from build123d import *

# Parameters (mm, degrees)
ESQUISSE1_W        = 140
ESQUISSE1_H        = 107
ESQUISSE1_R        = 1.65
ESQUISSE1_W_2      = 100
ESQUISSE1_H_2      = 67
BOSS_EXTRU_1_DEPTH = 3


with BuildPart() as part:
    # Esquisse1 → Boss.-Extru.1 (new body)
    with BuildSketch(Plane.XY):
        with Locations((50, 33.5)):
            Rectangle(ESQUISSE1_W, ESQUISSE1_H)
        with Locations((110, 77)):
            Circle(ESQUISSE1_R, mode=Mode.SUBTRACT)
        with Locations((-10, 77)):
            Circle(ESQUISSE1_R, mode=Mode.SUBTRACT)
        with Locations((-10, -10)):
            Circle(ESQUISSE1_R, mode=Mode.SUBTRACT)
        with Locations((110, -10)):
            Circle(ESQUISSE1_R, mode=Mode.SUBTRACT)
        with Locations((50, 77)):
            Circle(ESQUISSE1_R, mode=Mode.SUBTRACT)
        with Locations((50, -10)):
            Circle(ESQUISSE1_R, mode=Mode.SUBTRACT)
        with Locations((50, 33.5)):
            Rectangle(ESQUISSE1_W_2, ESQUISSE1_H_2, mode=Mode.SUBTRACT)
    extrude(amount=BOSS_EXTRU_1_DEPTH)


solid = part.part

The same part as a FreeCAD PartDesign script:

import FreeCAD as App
import Part
import Sketcher
from FreeCAD import Vector
Q = App.Units.Quantity

doc = App.newDocument("Part")
body = doc.addObject("PartDesign::Body", "Body")

sketch1 = body.newObject("Sketcher::SketchObject", "Sketch")
sketch1.AttachmentSupport = (doc.getObject("XY_Plane"), [""])
sketch1.MapMode = "FlatFace"
sketch1.addGeometry([
    Part.LineSegment(Vector(-20, 87, 0), Vector(-20, -20, 0)),
    Part.LineSegment(Vector(-20, -20, 0), Vector(120, -20, 0)),
    Part.LineSegment(Vector(120, -20, 0), Vector(120, 87, 0)),
    Part.LineSegment(Vector(120, 87, 0), Vector(-20, 87, 0)),
    Part.Circle(Vector(-10, -10, 0), Vector(0, 0, 1), 1.6),
    Part.Circle(Vector(50, -10, 0), Vector(0, 0, 1), 1.6),
    Part.Circle(Vector(110, -10, 0), Vector(0, 0, 1), 1.6),
    Part.LineSegment(Vector(100, 0, 0), Vector(0, 0, 0)),
    Part.LineSegment(Vector(0, 0, 0), Vector(0, 67, 0)),
    Part.LineSegment(Vector(0, 67, 0), Vector(100, 67, 0)),
    Part.LineSegment(Vector(100, 67, 0), Vector(100, 0, 0)),
    Part.Circle(Vector(-10, 77, 0), Vector(0, 0, 1), 1.6),
    Part.Circle(Vector(50, 77, 0), Vector(0, 0, 1), 1.6),
    Part.Circle(Vector(110, 77, 0), Vector(0, 0, 1), 1.6),
], False)
sketch1.addConstraint([
    Sketcher.Constraint("Coincident", 0, 2, 1, 1),
    Sketcher.Constraint("Coincident", 1, 2, 2, 1),
    Sketcher.Constraint("Coincident", 2, 2, 3, 1),
    Sketcher.Constraint("Coincident", 3, 2, 0, 1),
    Sketcher.Constraint("Coincident", 7, 2, 8, 1),
    Sketcher.Constraint("Coincident", 8, 2, 9, 1),
    Sketcher.Constraint("Coincident", 9, 2, 10, 1),
    Sketcher.Constraint("Coincident", 10, 2, 7, 1),
    Sketcher.Constraint("Vertical", 0),
    Sketcher.Constraint("Horizontal", 1),
    Sketcher.Constraint("Vertical", 2),
    Sketcher.Constraint("Horizontal", 3),
    Sketcher.Constraint("Horizontal", 7),
    Sketcher.Constraint("Vertical", 8),
    Sketcher.Constraint("Horizontal", 9),
    Sketcher.Constraint("Vertical", 10),
    Sketcher.Constraint("Coincident", 7, 2, -1, 1),
    Sketcher.Constraint("Equal", 4, 5),
    Sketcher.Constraint("Equal", 5, 6),
    Sketcher.Constraint("Equal", 6, 11),
    Sketcher.Constraint("Equal", 11, 12),
    Sketcher.Constraint("Equal", 12, 13),
    Sketcher.Constraint("Horizontal", 4, 3, 5, 3),
    Sketcher.Constraint("Horizontal", 5, 3, 6, 3),
    Sketcher.Constraint("Horizontal", 11, 3, 12, 3),
    Sketcher.Constraint("Horizontal", 12, 3, 13, 3),
    Sketcher.Constraint("Vertical", 4, 3, 11, 3),
    Sketcher.Constraint("Vertical", 5, 3, 12, 3),
    Sketcher.Constraint("Vertical", 6, 3, 13, 3),
    Sketcher.Constraint("Diameter", 4, Q("3.3 mm")),
    Sketcher.Constraint("DistanceX", 1, 1, 1, 2, Q("140 mm")),
    Sketcher.Constraint("DistanceX", 7, 2, 7, 1, Q("100 mm")),
    Sketcher.Constraint("DistanceY", 0, 2, 0, 1, Q("107 mm")),
    Sketcher.Constraint("DistanceY", 8, 1, 8, 2, Q("67 mm")),
    Sketcher.Constraint("DistanceX", 4, 3, -1, 1, Q("10 mm")),
    Sketcher.Constraint("DistanceY", 4, 3, -1, 1, Q("10 mm")),
    Sketcher.Constraint("DistanceX", -1, 1, 5, 3, Q("50 mm")),
    Sketcher.Constraint("DistanceX", -1, 1, 6, 3, Q("110 mm")),
    Sketcher.Constraint("DistanceY", -1, 1, 11, 3, Q("77 mm")),
    Sketcher.Constraint("DistanceX", 0, 2, -1, 1, Q("20 mm")),
    Sketcher.Constraint("DistanceY", 0, 2, -1, 1, Q("20 mm")),
])
pad1 = body.newObject("PartDesign::Pad", "Pad")
pad1.Profile = sketch1
pad1.Length = 3

doc.recompute()
